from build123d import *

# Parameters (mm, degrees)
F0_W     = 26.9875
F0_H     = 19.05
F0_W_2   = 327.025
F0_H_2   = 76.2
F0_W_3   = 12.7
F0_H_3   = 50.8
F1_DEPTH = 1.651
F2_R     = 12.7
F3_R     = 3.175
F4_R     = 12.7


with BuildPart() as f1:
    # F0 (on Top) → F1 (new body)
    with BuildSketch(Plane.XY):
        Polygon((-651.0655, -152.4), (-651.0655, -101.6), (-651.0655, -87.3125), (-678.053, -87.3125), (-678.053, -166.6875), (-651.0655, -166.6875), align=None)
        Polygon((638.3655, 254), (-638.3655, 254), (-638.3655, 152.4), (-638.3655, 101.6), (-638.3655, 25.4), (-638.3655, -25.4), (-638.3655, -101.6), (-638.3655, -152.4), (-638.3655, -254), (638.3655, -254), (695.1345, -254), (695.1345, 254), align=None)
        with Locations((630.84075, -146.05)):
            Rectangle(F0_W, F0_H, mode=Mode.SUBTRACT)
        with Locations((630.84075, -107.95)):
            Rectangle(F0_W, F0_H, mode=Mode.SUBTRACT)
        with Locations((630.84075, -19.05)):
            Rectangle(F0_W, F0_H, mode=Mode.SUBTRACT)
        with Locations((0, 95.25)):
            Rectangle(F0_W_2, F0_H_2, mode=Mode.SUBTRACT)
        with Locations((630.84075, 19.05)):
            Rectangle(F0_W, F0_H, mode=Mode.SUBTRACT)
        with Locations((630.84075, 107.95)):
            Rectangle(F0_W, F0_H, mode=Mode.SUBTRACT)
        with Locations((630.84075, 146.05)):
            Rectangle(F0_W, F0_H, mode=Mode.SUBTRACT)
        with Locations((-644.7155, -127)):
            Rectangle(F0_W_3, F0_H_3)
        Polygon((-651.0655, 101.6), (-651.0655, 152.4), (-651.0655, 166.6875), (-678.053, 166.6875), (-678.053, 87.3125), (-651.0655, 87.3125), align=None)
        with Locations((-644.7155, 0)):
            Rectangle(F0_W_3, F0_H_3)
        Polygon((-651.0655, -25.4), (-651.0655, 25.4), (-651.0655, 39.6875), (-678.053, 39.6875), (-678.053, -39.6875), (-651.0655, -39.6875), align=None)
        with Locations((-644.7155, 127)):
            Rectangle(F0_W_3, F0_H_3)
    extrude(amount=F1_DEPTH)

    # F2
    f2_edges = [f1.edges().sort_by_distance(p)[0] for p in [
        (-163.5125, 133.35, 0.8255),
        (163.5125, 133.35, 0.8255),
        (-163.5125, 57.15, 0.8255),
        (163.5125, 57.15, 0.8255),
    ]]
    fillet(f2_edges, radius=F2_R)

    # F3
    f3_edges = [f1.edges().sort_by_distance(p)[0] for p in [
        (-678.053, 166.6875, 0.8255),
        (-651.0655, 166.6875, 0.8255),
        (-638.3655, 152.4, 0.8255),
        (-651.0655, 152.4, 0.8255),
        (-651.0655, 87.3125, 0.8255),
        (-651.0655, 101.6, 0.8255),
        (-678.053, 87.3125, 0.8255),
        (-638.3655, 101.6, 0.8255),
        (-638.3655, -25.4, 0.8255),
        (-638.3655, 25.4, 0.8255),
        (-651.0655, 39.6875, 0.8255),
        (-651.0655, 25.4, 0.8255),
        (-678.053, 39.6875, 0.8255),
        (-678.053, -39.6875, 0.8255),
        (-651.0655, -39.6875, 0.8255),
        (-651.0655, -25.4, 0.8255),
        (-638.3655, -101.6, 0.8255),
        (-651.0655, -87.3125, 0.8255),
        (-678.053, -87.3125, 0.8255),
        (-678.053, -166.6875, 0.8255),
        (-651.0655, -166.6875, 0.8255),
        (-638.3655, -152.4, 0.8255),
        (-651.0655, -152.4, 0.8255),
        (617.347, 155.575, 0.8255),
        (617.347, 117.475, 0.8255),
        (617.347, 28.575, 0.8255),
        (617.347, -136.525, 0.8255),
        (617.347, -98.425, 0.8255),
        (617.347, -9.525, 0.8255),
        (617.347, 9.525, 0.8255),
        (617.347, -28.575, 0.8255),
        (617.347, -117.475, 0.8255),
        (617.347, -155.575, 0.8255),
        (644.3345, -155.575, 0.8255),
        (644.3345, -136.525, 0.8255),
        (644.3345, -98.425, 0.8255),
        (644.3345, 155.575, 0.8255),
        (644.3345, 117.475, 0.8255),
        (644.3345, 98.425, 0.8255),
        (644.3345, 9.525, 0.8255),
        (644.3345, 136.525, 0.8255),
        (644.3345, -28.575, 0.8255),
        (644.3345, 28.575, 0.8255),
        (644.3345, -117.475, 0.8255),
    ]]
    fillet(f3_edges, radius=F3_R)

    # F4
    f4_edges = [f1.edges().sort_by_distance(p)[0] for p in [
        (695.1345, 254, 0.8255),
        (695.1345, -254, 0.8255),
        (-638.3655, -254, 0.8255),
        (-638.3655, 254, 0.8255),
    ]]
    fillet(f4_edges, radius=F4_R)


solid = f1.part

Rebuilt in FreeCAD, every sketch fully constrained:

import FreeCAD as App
import Part
import Sketcher

V = App.Vector
Q = App.Units.Quantity


def edges_at(feature, points):
    """Names of the edges that pass closest to the given points."""
    edges = feature.Shape.Edges
    near = lambda p: min(range(len(edges)), key=lambda i: edges[i].distToShape(Part.Vertex(*p))[0])
    return sorted({f"Edge{near(p) + 1}" for p in points})


def add_polygon(sketch, points):
    """Adds a closed chain of lines whose ends are joined by coincident constraints."""
    first, n = sketch.GeometryCount, len(points)
    for a, b in zip(points, points[1:] + points[:1]):
        sketch.addGeometry(Part.LineSegment(App.Vector(*a, 0), App.Vector(*b, 0)), False)
    for i in range(n):
        sketch.addConstraint(Sketcher.Constraint("Coincident", first + i, 2, first + (i + 1) % n, 1))

doc = App.newDocument("Part")
body = doc.addObject("PartDesign::Body", "Body")

# Sketch on XY plane
sketch1 = doc.addObject("Sketcher::SketchObject", "Sketch")
body.addObject(sketch1)
sketch1.AttachmentSupport = (doc.XY_Plane, [""])
sketch1.MapMode = "FlatFace"
add_polygon(sketch1, [(-651.0655, -87.3125), (-678.053, -87.3125), (-678.053, -166.6875), (-651.0655, -166.6875), (-651.0655, -152.4), (-638.3655, -152.4), (-638.3655, -254), (695.1345, -254), (695.1345, 254), (-638.3655, 254), (-638.3655, 152.4), (-651.0655, 152.4), (-651.0655, 166.6875), (-678.053, 166.6875), (-678.053, 87.3125), (-651.0655, 87.3125), (-651.0655, 101.6), (-638.3655, 101.6), (-638.3655, 25.4), (-651.0655, 25.4), (-651.0655, 39.6875), (-678.053, 39.6875), (-678.053, -39.6875), (-651.0655, -39.6875), (-651.0655, -25.4), (-638.3655, -25.4), (-638.3655, -101.6), (-651.0655, -101.6)])  # lines 0-27
add_polygon(sketch1, [(617.347, 136.525), (617.347, 155.575), (644.3345, 155.575), (644.3345, 136.525)])  # lines 28-31
add_polygon(sketch1, [(644.3345, -155.575), (617.347, -155.575), (617.347, -136.525), (644.3345, -136.525)])  # lines 32-35
add_polygon(sketch1, [(644.3345, -117.475), (617.347, -117.475), (617.347, -98.425), (644.3345, -98.425)])  # lines 36-39
add_polygon(sketch1, [(644.3345, -28.575), (617.347, -28.575), (617.347, -9.525), (644.3345, -9.525)])  # lines 40-43
add_polygon(sketch1, [(163.5125, 57.15), (-163.5125, 57.15), (-163.5125, 133.35), (163.5125, 133.35)])  # lines 44-47
add_polygon(sketch1, [(644.3345, 9.525), (617.347, 9.525), (617.347, 28.575), (644.3345, 28.575)])  # lines 48-51
add_polygon(sketch1, [(644.3345, 98.425), (617.347, 98.425), (617.347, 117.475), (644.3345, 117.475)])  # lines 52-55
sketch1.addConstraint(Sketcher.Constraint("Horizontal", 0))
sketch1.addConstraint(Sketcher.Constraint("Vertical", 1))
sketch1.addConstraint(Sketcher.Constraint("Horizontal", 2))
sketch1.addConstraint(Sketcher.Constraint("Vertical", 3))
sketch1.addConstraint(Sketcher.Constraint("Horizontal", 4))
sketch1.addConstraint(Sketcher.Constraint("Vertical", 5))
sketch1.addConstraint(Sketcher.Constraint("Horizontal", 6))
sketch1.addConstraint(Sketcher.Constraint("Vertical", 7))
sketch1.addConstraint(Sketcher.Constraint("Horizontal", 8))
sketch1.addConstraint(Sketcher.Constraint("Vertical", 9))
sketch1.addConstraint(Sketcher.Constraint("Horizontal", 10))
sketch1.addConstraint(Sketcher.Constraint("Vertical", 11))
sketch1.addConstraint(Sketcher.Constraint("Horizontal", 12))
sketch1.addConstraint(Sketcher.Constraint("Vertical", 13))
sketch1.addConstraint(Sketcher.Constraint("Horizontal", 14))
sketch1.addConstraint(Sketcher.Constraint("Vertical", 15))
sketch1.addConstraint(Sketcher.Constraint("Horizontal", 16))
sketch1.addConstraint(Sketcher.Constraint("Vertical", 17))
sketch1.addConstraint(Sketcher.Constraint("Horizontal", 18))
sketch1.addConstraint(Sketcher.Constraint("Vertical", 19))
sketch1.addConstraint(Sketcher.Constraint("Horizontal", 20))
sketch1.addConstraint(Sketcher.Constraint("Vertical", 21))
sketch1.addConstraint(Sketcher.Constraint("Horizontal", 22))
sketch1.addConstraint(Sketcher.Constraint("Vertical", 23))
sketch1.addConstraint(Sketcher.Constraint("Horizontal", 24))
sketch1.addConstraint(Sketcher.Constraint("Vertical", 25))
sketch1.addConstraint(Sketcher.Constraint("Horizontal", 26))
sketch1.addConstraint(Sketcher.Constraint("Vertical", 27))
sketch1.addConstraint(Sketcher.Constraint("Vertical", 28))
sketch1.addConstraint(Sketcher.Constraint("Horizontal", 29))
sketch1.addConstraint(Sketcher.Constraint("Vertical", 30))
sketch1.addConstraint(Sketcher.Constraint("Horizontal", 31))
sketch1.addConstraint(Sketcher.Constraint("Horizontal", 32))
sketch1.addConstraint(Sketcher.Constraint("Vertical", 33))
sketch1.addConstraint(Sketcher.Constraint("Horizontal", 34))
sketch1.addConstraint(Sketcher.Constraint("Vertical", 35))
sketch1.addConstraint(Sketcher.Constraint("Horizontal", 36))
sketch1.addConstraint(Sketcher.Constraint("Vertical", 37))
sketch1.addConstraint(Sketcher.Constraint("Horizontal", 38))
sketch1.addConstraint(Sketcher.Constraint("Vertical", 39))
sketch1.addConstraint(Sketcher.Constraint("Horizontal", 40))
sketch1.addConstraint(Sketcher.Constraint("Vertical", 41))
sketch1.addConstraint(Sketcher.Constraint("Horizontal", 42))
sketch1.addConstraint(Sketcher.Constraint("Vertical", 43))
sketch1.addConstraint(Sketcher.Constraint("Horizontal", 44))
sketch1.addConstraint(Sketcher.Constraint("Vertical", 45))
sketch1.addConstraint(Sketcher.Constraint("Horizontal", 46))
sketch1.addConstraint(Sketcher.Constraint("Vertical", 47))
sketch1.addConstraint(Sketcher.Constraint("Horizontal", 48))
sketch1.addConstraint(Sketcher.Constraint("Vertical", 49))
sketch1.addConstraint(Sketcher.Constraint("Horizontal", 50))
sketch1.addConstraint(Sketcher.Constraint("Vertical", 51))
sketch1.addConstraint(Sketcher.Constraint("Horizontal", 52))
sketch1.addConstraint(Sketcher.Constraint("Vertical", 53))
sketch1.addConstraint(Sketcher.Constraint("Horizontal", 54))
sketch1.addConstraint(Sketcher.Constraint("Vertical", 55))
sketch1.addConstraint(Sketcher.Constraint("Symmetric", 5, 2, 8, 2, -1))
sketch1.addConstraint(Sketcher.Constraint("Symmetric", 3, 2, 10, 2, -1))
sketch1.addConstraint(Sketcher.Constraint("Symmetric", 1, 2, 12, 2, -1))
sketch1.addConstraint(Sketcher.Constraint("Symmetric", 19, 2, 22, 2, -1))
sketch1.addConstraint(Sketcher.Constraint("Symmetric", 17, 2, 24, 2, -1))
sketch1.addConstraint(Sketcher.Constraint("Symmetric", 15, 2, 26, 2, -1))
sketch1.addConstraint(Sketcher.Constraint("Symmetric", 28, 2, 32, 2, -1))
sketch1.addConstraint(Sketcher.Constraint("Symmetric", 30, 2, 34, 2, -1))
sketch1.addConstraint(Sketcher.Constraint("Symmetric", 41, 2, 48, 2, -1))
sketch1.addConstraint(Sketcher.Constraint("Symmetric", 43, 2, 50, 2, -1))
sketch1.addConstraint(Sketcher.Constraint("Symmetric", 37, 2, 52, 2, -1))
sketch1.addConstraint(Sketcher.Constraint("Symmetric", 39, 2, 54, 2, -1))
sketch1.addConstraint(Sketcher.Constraint("Vertical", 11, 2, 14, 2))
sketch1.addConstraint(Sketcher.Constraint("Vertical", 9, 2, 16, 2))
sketch1.addConstraint(Sketcher.Constraint("Vertical", 15, 2, 18, 2))
sketch1.addConstraint(Sketcher.Constraint("Vertical", 13, 2, 20, 2))
sketch1.addConstraint(Sketcher.Constraint("Vertical", 33, 2, 36, 2))
sketch1.addConstraint(Sketcher.Constraint("Vertical", 35, 2, 38, 2))
sketch1.addConstraint(Sketcher.Constraint("Vertical", 37, 2, 40, 2))
sketch1.addConstraint(Sketcher.Constraint("Vertical", 39, 2, 42, 2))
sketch1.addConstraint(Sketcher.Constraint("Equal", 22, 29))
sketch1.addConstraint(Sketcher.Constraint("Equal", 1, 13))
sketch1.addConstraint(Sketcher.Constraint("Equal", 11, 15))
sketch1.addConstraint(Sketcher.Constraint("Equal", 15, 19))
sketch1.addConstraint(Sketcher.Constraint("Equal", 13, 21))
sketch1.addConstraint(Sketcher.Constraint("Equal", 35, 37))
sketch1.addConstraint(Sketcher.Constraint("Equal", 39, 41))
sketch1.addConstraint(Sketcher.Constraint("Equal", 25, 45))
sketch1.addConstraint(Sketcher.Constraint("DistanceY", 5, 2, 5, 1, Q("4 in")))
sketch1.addConstraint(Sketcher.Constraint("DistanceY", 7, 1, 7, 2, Q("20 in")))
sketch1.addConstraint(Sketcher.Constraint("DistanceY", 17, 2, 17, 1, Q("3 in")))
sketch1.addConstraint(Sketcher.Constraint("DistanceX", 4, 1, 4, 2, Q("0.5 in")))
sketch1.addConstraint(Sketcher.Constraint("DistanceX", 6, 1, 6, 2, Q("52.5 in")))
sketch1.addConstraint(Sketcher.Constraint("DistanceX", 29, 2, 7, 2, Q("2 in")))
sketch1.addConstraint(Sketcher.Constraint("DistanceY", 28, 1, 28, 2, Q("0.75 in")))
sketch1.addConstraint(Sketcher.Constraint("DistanceY", 32, 2, 31, 2, Q("11.5 in")))
sketch1.addConstraint(Sketcher.Constraint("DistanceY", 32, 2, 36, 2, Q("1.5 in")))
sketch1.addConstraint(Sketcher.Constraint("DistanceY", 36, 2, 40, 2, Q("3.5 in")))
sketch1.addConstraint(Sketcher.Constraint("DistanceX", 0, 2, 0, 1, Q("1.0625 in")))
sketch1.addConstraint(Sketcher.Constraint("DistanceX", 44, 2, 44, 1, Q("12.875 in")))
sketch1.addConstraint(Sketcher.Constraint("DistanceY", 1, 2, 1, 1, Q("3.125 in")))
sketch1.addConstraint(Sketcher.Constraint("DistanceY", -1, 1, 44, 2, Q("2.25 in")))
sketch1.addConstraint(Sketcher.Constraint("DistanceX", 0, 2, -1, 1, Q("26.695 in")))
sketch1.addConstraint(Sketcher.Constraint("DistanceX", 44, 2, -1, 1, Q("6.4375 in")))
pad1 = doc.addObject("PartDesign::Pad", "Pad")
body.addObject(pad1)
pad1.Profile = sketch1
pad1.Length = Q("0.065 in")
doc.recompute()

fillet = doc.addObject("PartDesign::Fillet", "Fillet")
body.addObject(fillet)
fillet.Base = (pad1, edges_at(pad1, [
    (-163.512, 133.35, 0.826),
    (163.512, 133.35, 0.826),
    (-163.512, 57.15, 0.826),
    (163.512, 57.15, 0.826),
]))
fillet.Radius = Q("0.5 in")
doc.recompute()

fillet2 = doc.addObject("PartDesign::Fillet", "Fillet001")
body.addObject(fillet2)
fillet2.Base = (fillet, edges_at(fillet, [
    (-678.053, 166.688, 0.826),
    (-651.066, 166.688, 0.826),
    (-638.365, 152.4, 0.826),
    (-651.066, 152.4, 0.826),
    (-651.066, 87.312, 0.826),
    (-651.066, 101.6, 0.826),
    (-678.053, 87.312, 0.826),
    (-638.365, 101.6, 0.826),
    (-638.365, -25.4, 0.826),
    (-638.365, 25.4, 0.826),
    (-651.066, 39.688, 0.826),
    (-651.066, 25.4, 0.826),
    (-678.053, 39.688, 0.826),
    (-678.053, -39.688, 0.826),
    (-651.066, -39.688, 0.826),
    (-651.066, -25.4, 0.826),
    (-638.365, -101.6, 0.826),
    (-651.066, -87.312, 0.826),
    (-678.053, -87.312, 0.826),
    (-678.053, -166.688, 0.826),
    (-651.066, -166.688, 0.826),
    (-638.365, -152.4, 0.826),
    (-651.066, -152.4, 0.826),
    (617.347, 155.575, 0.826),
    (617.347, 117.475, 0.826),
    (617.347, 28.575, 0.826),
    (617.347, -136.525, 0.826),
    (617.347, -98.425, 0.826),
    (617.347, -9.525, 0.826),
    (617.347, 9.525, 0.826),
    (617.347, -28.575, 0.826),
    (617.347, -117.475, 0.826),
    (617.347, -155.575, 0.826),
    (644.335, -155.575, 0.826),
    (644.335, -136.525, 0.826),
    (644.335, -98.425, 0.826),
    (644.335, 155.575, 0.826),
    (644.335, 117.475, 0.826),
    (644.335, 98.425, 0.826),
    (644.335, 9.525, 0.826),
    (644.335, 136.525, 0.826),
    (644.335, -28.575, 0.826),
    (644.335, 28.575, 0.826),
    (644.335, -117.475, 0.826),
]))
fillet2.Radius = Q("0.125 in")
doc.recompute()

fillet3 = doc.addObject("PartDesign::Fillet", "Fillet002")
body.addObject(fillet3)
fillet3.Base = (fillet2, edges_at(fillet2, [
    (695.135, 254, 0.826),
    (695.135, -254, 0.826),
    (-638.365, -254, 0.826),
    (-638.365, 254, 0.826),
]))
fillet3.Radius = Q("0.5 in")

doc.recompute()
